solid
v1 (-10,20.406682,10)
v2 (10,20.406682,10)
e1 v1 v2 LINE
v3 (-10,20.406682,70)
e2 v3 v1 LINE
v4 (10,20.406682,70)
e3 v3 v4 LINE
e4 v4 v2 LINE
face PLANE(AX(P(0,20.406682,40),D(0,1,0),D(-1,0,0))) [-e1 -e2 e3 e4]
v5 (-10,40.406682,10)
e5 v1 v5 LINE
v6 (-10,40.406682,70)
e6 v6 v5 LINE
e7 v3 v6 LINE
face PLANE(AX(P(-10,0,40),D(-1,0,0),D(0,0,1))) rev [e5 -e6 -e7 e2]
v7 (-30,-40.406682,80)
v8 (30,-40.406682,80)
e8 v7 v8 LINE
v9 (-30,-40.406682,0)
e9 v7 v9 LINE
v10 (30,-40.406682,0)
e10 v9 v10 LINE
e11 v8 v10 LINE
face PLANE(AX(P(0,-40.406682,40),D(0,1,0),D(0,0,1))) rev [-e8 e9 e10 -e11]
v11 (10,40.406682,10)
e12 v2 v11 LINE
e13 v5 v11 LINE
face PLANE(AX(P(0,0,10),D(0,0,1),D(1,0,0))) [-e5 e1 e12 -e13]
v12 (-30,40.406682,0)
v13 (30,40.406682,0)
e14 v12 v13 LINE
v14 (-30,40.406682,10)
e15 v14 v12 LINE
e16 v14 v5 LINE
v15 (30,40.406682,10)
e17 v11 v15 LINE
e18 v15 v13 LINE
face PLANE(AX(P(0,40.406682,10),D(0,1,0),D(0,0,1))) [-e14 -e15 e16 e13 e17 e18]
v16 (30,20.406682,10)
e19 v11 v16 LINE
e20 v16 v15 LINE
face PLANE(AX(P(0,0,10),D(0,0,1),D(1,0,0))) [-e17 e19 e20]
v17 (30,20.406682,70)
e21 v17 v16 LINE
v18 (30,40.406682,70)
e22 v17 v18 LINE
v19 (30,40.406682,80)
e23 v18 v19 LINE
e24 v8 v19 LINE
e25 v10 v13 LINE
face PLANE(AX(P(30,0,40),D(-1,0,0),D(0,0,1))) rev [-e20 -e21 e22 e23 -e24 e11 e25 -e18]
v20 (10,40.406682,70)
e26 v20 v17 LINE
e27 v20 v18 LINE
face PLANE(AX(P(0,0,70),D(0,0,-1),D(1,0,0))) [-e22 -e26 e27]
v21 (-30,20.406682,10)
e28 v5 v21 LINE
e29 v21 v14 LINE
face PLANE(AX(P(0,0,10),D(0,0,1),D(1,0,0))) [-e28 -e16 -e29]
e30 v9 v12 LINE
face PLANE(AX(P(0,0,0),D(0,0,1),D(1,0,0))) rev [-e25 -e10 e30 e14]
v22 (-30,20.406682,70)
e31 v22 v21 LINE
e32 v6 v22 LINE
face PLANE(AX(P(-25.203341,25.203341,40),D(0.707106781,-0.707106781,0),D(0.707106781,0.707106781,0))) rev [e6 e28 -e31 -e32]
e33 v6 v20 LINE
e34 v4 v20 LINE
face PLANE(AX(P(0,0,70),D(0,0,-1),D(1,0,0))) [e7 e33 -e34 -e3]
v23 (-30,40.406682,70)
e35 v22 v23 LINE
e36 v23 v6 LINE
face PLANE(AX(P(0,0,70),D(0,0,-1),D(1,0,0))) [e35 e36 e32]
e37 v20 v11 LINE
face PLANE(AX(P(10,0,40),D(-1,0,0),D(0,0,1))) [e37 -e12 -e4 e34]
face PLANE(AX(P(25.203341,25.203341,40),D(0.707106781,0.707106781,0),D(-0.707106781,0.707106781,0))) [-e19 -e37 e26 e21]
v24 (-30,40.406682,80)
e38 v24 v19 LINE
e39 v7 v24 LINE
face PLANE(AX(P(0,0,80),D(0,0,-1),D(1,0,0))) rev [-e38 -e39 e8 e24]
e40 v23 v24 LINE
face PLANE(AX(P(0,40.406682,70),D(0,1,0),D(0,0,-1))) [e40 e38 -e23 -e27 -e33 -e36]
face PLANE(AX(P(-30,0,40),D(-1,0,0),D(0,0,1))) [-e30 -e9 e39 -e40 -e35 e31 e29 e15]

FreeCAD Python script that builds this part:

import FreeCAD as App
import Part
import Sketcher
from FreeCAD import Vector


def add_polygon(sketch, points):
    """Adds a closed chain of lines whose ends are joined by coincident constraints."""
    first, n = sketch.GeometryCount, len(points)
    for a, b in zip(points, points[1:] + points[:1]):
        sketch.addGeometry(Part.LineSegment(App.Vector(*a, 0), App.Vector(*b, 0)), False)
    for i in range(n):
        sketch.addConstraint(Sketcher.Constraint("Coincident", first + i, 2, first + (i + 1) % n, 1))

doc = App.newDocument("Part")
body = doc.addObject("PartDesign::Body", "Body")

sketch1 = doc.addObject("Sketcher::SketchObject", "Sketch")
body.addObject(sketch1)
sketch1.AttachmentSupport = (doc.XY_Plane, [""])
sketch1.MapMode = "FlatFace"
add_polygon(sketch1, [(30, 20.406682), (10, 40.406682), (10, 20.406682), (-10, 20.406682), (-10, 40.406682), (-30, 20.406682), (-30, -40.406682), (30, -40.406682)])
sketch1.addConstraint(Sketcher.Constraint("Vertical", 1))
sketch1.addConstraint(Sketcher.Constraint("Horizontal", 2))
sketch1.addConstraint(Sketcher.Constraint("Vertical", 3))
sketch1.addConstraint(Sketcher.Constraint("Vertical", 5))
sketch1.addConstraint(Sketcher.Constraint("Horizontal", 6))
sketch1.addConstraint(Sketcher.Constraint("Vertical", 7))
sketch1.addConstraint(Sketcher.Constraint("Symmetric", 0, 2, 3, 2, -2))
sketch1.addConstraint(Sketcher.Constraint("Symmetric", 4, 2, 7, 2, -2))
sketch1.addConstraint(Sketcher.Constraint("Perpendicular", 0, 4))
sketch1.addConstraint(Sketcher.Constraint("Horizontal", 2, 2, 4, 2))
sketch1.addConstraint(Sketcher.Constraint("Equal", 2, 1))
sketch1.addConstraint(Sketcher.Constraint("DistanceX", 2, 2, 2, 1, 20.0))
sketch1.addConstraint(Sketcher.Constraint("DistanceY", 5, 2, 5, 1, 60.813365))
sketch1.addConstraint(Sketcher.Constraint("DistanceY", -1, 1, 0, 2, 40.406682))
pad1 = doc.addObject("PartDesign::Pad", "Pad")
body.addObject(pad1)
pad1.Profile = sketch1
pad1.Length = 40

sketch2 = doc.addObject("Sketcher::SketchObject", "Sketch001")
body.addObject(sketch2)
sketch2.AttachmentSupport = (doc.XY_Plane, [""])
sketch2.MapMode = "FlatFace"
add_polygon(sketch2, [(-30, 20.406682), (-10, 40.406682), (-30, 40.406682)])
add_polygon(sketch2, [(-10, 40.406682), (-10, 20.406682), (10, 20.406682), (10, 40.406682)])
add_polygon(sketch2, [(30, 40.406682), (10, 40.406682), (30, 20.406682)])
sketch2.addConstraint(Sketcher.Constraint("Horizontal", 1))
sketch2.addConstraint(Sketcher.Constraint("Vertical", 2))
sketch2.addConstraint(Sketcher.Constraint("Vertical", 3))
sketch2.addConstraint(Sketcher.Constraint("Horizontal", 4))
sketch2.addConstraint(Sketcher.Constraint("Vertical", 5))
sketch2.addConstraint(Sketcher.Constraint("Horizontal", 6))
sketch2.addConstraint(Sketcher.Constraint("Horizontal", 7))
sketch2.addConstraint(Sketcher.Constraint("Vertical", 9))
sketch2.addConstraint(Sketcher.Constraint("Coincident", 6, 2, 0, 2))
sketch2.addConstraint(Sketcher.Constraint("Coincident", 7, 2, 5, 2))
sketch2.addConstraint(Sketcher.Constraint("Symmetric", 2, 2, 8, 2, -2))
sketch2.addConstraint(Sketcher.Constraint("Perpendicular", 0, 8))
sketch2.addConstraint(Sketcher.Constraint("Horizontal", 2, 2, 3, 2))
sketch2.addConstraint(Sketcher.Constraint("Equal", 1, 4))
sketch2.addConstraint(Sketcher.Constraint("Equal", 6, 7))
sketch2.addConstraint(Sketcher.Constraint("DistanceX", 1, 2, 1, 1, 20.0))
sketch2.addConstraint(Sketcher.Constraint("DistanceY", -1, 1, 0, 2, 40.406682))
pad2 = doc.addObject("PartDesign::Pad", "Pad001")
body.addObject(pad2)
pad2.Profile = sketch2
pad2.Length = 10
body2 = doc.addObject("PartDesign::Body", "Body001")
doc.recompute()

body2.BaseFeature = body
doc.recompute()

mirroring = doc.addObject("Part::Mirroring", "Mirroring")
mirroring.Source = body
mirroring.Base = Vector(0, 0, 40)
mirroring.Normal = Vector(0, 0, 1)
body3 = doc.addObject("PartDesign::Body", "Body002")
body3.BaseFeature = mirroring
boolean = doc.addObject("PartDesign::Boolean", "Boolean")
body2.addObject(boolean)
boolean.Type = "Fuse"
boolean.addObjects([body3])
doc.recompute()
mirroring.Visibility = False

doc.recompute()
